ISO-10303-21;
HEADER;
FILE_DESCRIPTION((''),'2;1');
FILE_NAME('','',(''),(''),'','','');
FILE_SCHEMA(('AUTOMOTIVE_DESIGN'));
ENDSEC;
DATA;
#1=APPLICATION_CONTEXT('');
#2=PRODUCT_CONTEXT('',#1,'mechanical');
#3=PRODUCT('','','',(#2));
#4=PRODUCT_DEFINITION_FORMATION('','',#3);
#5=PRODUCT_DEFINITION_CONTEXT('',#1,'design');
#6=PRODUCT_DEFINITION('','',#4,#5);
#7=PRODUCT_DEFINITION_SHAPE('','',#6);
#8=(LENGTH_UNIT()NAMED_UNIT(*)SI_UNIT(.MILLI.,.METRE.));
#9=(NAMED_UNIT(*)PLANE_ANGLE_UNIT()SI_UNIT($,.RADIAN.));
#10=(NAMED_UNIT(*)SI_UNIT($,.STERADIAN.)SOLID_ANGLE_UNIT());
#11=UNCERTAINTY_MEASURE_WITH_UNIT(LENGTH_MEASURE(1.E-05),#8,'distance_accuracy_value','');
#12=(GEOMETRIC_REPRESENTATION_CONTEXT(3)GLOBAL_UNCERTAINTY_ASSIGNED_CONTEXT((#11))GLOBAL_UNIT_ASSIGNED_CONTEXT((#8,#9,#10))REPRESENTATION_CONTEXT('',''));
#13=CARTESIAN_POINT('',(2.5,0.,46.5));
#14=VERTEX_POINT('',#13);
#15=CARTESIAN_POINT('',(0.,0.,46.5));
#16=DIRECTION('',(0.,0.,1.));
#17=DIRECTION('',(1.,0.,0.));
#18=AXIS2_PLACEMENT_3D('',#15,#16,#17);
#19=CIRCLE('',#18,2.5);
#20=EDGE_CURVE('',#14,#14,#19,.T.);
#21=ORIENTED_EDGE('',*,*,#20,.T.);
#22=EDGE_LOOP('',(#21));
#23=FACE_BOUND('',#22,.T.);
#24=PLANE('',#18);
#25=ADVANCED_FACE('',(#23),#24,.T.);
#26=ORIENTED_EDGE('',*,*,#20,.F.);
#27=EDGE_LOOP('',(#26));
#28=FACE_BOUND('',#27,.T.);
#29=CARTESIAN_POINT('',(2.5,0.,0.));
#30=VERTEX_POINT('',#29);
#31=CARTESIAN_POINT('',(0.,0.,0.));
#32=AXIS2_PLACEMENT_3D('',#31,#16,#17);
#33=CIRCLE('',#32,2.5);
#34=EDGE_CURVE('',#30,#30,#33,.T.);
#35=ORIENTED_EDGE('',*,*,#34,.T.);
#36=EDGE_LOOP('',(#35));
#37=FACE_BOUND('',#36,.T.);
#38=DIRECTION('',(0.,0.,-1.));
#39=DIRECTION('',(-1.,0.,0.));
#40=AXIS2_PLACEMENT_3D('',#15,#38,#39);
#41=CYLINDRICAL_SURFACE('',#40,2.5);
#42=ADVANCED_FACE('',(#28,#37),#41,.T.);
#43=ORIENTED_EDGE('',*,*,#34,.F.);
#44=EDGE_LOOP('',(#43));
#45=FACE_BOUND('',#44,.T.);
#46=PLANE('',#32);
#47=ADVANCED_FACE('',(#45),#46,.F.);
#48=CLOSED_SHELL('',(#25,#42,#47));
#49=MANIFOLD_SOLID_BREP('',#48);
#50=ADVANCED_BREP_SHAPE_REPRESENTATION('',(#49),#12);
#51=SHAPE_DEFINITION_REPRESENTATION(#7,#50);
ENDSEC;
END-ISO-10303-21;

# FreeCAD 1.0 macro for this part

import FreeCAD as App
import Part
import Sketcher

V = App.Vector
Q = App.Units.Quantity

doc = App.newDocument("Part")
body = doc.addObject("PartDesign::Body", "Body")

# Sketch on XY plane
sketch1 = body.newObject("Sketcher::SketchObject", "Sketch")
sketch1.AttachmentSupport = (doc.getObject("XY_Plane"), [""])
sketch1.MapMode = "FlatFace"
sketch1.addGeometry(Part.Circle(V(0, 0, 0), V(0, 0, 1), 2.5), False)
sketch1.addConstraint(Sketcher.Constraint("Coincident", 0, 3, -1, 1))
sketch1.addConstraint(Sketcher.Constraint("Diameter", 0, Q("5 mm")))
pad1 = body.newObject("PartDesign::Pad", "Pad")
pad1.Profile = sketch1
pad1.Length = 46.5

doc.recompute()
